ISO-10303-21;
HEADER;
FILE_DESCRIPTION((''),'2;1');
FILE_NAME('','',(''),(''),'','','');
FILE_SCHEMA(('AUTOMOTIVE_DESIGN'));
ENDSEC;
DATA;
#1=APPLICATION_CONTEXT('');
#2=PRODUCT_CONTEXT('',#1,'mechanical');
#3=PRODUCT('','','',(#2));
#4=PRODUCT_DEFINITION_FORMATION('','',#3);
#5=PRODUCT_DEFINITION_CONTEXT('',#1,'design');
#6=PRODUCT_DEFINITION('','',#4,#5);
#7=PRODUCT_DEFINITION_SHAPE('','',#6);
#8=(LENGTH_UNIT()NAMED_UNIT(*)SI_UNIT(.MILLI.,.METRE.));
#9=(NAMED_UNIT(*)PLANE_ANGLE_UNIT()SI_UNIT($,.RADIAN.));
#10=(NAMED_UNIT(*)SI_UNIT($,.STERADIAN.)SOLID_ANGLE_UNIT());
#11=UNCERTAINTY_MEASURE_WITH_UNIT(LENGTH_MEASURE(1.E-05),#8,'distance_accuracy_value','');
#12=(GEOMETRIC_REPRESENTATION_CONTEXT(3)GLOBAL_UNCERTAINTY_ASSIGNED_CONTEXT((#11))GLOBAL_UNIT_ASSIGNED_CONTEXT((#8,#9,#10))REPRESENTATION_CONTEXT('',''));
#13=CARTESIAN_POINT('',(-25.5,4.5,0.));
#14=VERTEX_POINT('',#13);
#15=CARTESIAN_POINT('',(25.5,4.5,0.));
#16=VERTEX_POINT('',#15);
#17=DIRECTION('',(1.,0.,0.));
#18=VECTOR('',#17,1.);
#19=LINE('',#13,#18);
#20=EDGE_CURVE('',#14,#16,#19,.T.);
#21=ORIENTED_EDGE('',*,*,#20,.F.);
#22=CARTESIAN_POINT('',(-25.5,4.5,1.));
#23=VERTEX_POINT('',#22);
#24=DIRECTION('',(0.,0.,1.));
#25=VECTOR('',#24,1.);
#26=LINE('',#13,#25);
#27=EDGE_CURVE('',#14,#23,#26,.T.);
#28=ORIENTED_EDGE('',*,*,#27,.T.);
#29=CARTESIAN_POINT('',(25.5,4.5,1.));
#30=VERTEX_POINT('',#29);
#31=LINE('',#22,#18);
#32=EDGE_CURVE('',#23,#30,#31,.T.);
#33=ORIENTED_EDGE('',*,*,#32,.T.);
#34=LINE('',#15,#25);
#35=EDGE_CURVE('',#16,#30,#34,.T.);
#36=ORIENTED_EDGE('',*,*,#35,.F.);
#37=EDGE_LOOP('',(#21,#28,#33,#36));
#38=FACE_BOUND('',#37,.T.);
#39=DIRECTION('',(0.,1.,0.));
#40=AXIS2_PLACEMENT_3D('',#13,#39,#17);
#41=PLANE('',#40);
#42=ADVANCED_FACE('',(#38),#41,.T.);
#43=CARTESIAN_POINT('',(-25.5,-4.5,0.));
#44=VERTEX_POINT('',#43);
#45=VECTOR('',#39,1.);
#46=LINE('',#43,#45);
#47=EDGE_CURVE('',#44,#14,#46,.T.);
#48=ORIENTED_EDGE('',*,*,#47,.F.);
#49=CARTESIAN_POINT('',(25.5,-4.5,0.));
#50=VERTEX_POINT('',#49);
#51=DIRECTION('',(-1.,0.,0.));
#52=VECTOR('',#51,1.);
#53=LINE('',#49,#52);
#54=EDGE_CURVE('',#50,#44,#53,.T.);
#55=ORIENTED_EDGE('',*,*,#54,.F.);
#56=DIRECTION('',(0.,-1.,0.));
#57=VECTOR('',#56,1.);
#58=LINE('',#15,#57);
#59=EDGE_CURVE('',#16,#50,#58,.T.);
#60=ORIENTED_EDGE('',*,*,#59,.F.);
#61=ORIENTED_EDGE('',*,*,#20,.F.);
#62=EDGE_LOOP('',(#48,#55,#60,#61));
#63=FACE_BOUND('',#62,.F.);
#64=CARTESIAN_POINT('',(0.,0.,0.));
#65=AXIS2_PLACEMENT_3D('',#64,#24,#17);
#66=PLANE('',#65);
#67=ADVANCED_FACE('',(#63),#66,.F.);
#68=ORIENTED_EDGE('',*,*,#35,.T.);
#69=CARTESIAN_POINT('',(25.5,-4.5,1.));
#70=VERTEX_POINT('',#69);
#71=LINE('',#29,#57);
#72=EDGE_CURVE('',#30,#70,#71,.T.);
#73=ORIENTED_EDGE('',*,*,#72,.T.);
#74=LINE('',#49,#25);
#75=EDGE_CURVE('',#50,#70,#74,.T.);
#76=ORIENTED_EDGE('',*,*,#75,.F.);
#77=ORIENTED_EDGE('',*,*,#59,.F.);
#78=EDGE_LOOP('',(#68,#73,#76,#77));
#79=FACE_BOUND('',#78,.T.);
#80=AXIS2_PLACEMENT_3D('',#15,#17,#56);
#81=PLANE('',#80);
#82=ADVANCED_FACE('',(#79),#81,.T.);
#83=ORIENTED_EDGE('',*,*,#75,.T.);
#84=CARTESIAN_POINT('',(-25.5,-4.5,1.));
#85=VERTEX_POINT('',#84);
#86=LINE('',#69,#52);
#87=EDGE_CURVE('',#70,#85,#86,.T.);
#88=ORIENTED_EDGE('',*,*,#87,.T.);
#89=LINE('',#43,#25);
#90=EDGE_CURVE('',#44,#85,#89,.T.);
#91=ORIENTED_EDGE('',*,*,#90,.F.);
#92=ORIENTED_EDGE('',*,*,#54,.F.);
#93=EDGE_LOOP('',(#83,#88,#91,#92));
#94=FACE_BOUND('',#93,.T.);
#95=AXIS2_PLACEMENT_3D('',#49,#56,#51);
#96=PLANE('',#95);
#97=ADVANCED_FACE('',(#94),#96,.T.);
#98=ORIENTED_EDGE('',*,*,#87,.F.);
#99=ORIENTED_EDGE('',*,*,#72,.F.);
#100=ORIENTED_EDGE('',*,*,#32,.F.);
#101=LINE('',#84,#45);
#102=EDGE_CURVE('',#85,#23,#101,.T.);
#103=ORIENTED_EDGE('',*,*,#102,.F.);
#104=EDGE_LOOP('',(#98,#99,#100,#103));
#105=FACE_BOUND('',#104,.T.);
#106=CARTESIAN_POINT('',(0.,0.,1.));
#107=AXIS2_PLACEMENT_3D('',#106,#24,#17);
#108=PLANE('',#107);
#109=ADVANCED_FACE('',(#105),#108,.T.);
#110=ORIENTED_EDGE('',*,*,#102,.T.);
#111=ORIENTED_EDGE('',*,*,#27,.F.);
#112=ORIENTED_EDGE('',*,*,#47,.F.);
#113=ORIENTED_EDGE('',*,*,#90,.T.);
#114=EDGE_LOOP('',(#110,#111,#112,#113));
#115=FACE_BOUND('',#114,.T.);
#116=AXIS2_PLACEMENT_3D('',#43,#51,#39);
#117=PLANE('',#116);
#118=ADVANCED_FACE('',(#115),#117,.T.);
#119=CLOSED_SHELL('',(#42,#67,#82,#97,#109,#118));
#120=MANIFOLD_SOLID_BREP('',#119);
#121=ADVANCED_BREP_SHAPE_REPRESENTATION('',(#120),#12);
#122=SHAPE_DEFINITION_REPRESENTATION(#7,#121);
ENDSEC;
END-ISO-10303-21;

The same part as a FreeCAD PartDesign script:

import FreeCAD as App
import Part
import Sketcher

V = App.Vector
Q = App.Units.Quantity

doc = App.newDocument("Part")
params = doc.addObject("Spreadsheet::Sheet", "Params")
for row, (alias, value) in enumerate([
    ("sketch1_width", "51 mm"),
    ("sketch1_height", "9 mm"),
    ("pad1_length", "1 mm"),
], start=1):
    params.set(f"A{row}", alias)
    params.set(f"B{row}", "=" + value)
    params.setAlias(f"B{row}", alias)

body = doc.addObject("PartDesign::Body", "Body")

# Sketch on XY plane
sketch1 = body.newObject("Sketcher::SketchObject", "Sketch")
sketch1.AttachmentSupport = (doc.getObject("XY_Plane"), [""])
sketch1.MapMode = "FlatFace"
sketch1.addGeometry([
    Part.LineSegment(V(26, 4, 0), V(-26, 4, 0)),
    Part.LineSegment(V(-26, 4, 0), V(-26, -4, 0)),
    Part.LineSegment(V(-26, -4, 0), V(26, -4, 0)),
    Part.LineSegment(V(26, -4, 0), V(26, 4, 0)),
], False)
sketch1.addConstraint([
    Sketcher.Constraint("Coincident", 0, 2, 1, 1),
    Sketcher.Constraint("Coincident", 1, 2, 2, 1),
    Sketcher.Constraint("Coincident", 2, 2, 3, 1),
    Sketcher.Constraint("Coincident", 3, 2, 0, 1),
    Sketcher.Constraint("Horizontal", 0),
    Sketcher.Constraint("Vertical", 1),
    Sketcher.Constraint("Horizontal", 2),
    Sketcher.Constraint("Vertical", 3),
    Sketcher.Constraint("Symmetric", 0, 2, 2, 2, -1, 1),
    Sketcher.Constraint("DistanceX", 0, 2, 0, 1, Q("51 mm")),
    Sketcher.Constraint("DistanceY", 1, 2, 1, 1, Q("9 mm")),
])
sketch1.setExpression("Constraints[9]", "Params.sketch1_width")
sketch1.setExpression("Constraints[10]", "Params.sketch1_height")
pad1 = body.newObject("PartDesign::Pad", "Pad")
pad1.Profile = sketch1
pad1.setExpression("Length", "Params.pad1_length")

doc.recompute()
